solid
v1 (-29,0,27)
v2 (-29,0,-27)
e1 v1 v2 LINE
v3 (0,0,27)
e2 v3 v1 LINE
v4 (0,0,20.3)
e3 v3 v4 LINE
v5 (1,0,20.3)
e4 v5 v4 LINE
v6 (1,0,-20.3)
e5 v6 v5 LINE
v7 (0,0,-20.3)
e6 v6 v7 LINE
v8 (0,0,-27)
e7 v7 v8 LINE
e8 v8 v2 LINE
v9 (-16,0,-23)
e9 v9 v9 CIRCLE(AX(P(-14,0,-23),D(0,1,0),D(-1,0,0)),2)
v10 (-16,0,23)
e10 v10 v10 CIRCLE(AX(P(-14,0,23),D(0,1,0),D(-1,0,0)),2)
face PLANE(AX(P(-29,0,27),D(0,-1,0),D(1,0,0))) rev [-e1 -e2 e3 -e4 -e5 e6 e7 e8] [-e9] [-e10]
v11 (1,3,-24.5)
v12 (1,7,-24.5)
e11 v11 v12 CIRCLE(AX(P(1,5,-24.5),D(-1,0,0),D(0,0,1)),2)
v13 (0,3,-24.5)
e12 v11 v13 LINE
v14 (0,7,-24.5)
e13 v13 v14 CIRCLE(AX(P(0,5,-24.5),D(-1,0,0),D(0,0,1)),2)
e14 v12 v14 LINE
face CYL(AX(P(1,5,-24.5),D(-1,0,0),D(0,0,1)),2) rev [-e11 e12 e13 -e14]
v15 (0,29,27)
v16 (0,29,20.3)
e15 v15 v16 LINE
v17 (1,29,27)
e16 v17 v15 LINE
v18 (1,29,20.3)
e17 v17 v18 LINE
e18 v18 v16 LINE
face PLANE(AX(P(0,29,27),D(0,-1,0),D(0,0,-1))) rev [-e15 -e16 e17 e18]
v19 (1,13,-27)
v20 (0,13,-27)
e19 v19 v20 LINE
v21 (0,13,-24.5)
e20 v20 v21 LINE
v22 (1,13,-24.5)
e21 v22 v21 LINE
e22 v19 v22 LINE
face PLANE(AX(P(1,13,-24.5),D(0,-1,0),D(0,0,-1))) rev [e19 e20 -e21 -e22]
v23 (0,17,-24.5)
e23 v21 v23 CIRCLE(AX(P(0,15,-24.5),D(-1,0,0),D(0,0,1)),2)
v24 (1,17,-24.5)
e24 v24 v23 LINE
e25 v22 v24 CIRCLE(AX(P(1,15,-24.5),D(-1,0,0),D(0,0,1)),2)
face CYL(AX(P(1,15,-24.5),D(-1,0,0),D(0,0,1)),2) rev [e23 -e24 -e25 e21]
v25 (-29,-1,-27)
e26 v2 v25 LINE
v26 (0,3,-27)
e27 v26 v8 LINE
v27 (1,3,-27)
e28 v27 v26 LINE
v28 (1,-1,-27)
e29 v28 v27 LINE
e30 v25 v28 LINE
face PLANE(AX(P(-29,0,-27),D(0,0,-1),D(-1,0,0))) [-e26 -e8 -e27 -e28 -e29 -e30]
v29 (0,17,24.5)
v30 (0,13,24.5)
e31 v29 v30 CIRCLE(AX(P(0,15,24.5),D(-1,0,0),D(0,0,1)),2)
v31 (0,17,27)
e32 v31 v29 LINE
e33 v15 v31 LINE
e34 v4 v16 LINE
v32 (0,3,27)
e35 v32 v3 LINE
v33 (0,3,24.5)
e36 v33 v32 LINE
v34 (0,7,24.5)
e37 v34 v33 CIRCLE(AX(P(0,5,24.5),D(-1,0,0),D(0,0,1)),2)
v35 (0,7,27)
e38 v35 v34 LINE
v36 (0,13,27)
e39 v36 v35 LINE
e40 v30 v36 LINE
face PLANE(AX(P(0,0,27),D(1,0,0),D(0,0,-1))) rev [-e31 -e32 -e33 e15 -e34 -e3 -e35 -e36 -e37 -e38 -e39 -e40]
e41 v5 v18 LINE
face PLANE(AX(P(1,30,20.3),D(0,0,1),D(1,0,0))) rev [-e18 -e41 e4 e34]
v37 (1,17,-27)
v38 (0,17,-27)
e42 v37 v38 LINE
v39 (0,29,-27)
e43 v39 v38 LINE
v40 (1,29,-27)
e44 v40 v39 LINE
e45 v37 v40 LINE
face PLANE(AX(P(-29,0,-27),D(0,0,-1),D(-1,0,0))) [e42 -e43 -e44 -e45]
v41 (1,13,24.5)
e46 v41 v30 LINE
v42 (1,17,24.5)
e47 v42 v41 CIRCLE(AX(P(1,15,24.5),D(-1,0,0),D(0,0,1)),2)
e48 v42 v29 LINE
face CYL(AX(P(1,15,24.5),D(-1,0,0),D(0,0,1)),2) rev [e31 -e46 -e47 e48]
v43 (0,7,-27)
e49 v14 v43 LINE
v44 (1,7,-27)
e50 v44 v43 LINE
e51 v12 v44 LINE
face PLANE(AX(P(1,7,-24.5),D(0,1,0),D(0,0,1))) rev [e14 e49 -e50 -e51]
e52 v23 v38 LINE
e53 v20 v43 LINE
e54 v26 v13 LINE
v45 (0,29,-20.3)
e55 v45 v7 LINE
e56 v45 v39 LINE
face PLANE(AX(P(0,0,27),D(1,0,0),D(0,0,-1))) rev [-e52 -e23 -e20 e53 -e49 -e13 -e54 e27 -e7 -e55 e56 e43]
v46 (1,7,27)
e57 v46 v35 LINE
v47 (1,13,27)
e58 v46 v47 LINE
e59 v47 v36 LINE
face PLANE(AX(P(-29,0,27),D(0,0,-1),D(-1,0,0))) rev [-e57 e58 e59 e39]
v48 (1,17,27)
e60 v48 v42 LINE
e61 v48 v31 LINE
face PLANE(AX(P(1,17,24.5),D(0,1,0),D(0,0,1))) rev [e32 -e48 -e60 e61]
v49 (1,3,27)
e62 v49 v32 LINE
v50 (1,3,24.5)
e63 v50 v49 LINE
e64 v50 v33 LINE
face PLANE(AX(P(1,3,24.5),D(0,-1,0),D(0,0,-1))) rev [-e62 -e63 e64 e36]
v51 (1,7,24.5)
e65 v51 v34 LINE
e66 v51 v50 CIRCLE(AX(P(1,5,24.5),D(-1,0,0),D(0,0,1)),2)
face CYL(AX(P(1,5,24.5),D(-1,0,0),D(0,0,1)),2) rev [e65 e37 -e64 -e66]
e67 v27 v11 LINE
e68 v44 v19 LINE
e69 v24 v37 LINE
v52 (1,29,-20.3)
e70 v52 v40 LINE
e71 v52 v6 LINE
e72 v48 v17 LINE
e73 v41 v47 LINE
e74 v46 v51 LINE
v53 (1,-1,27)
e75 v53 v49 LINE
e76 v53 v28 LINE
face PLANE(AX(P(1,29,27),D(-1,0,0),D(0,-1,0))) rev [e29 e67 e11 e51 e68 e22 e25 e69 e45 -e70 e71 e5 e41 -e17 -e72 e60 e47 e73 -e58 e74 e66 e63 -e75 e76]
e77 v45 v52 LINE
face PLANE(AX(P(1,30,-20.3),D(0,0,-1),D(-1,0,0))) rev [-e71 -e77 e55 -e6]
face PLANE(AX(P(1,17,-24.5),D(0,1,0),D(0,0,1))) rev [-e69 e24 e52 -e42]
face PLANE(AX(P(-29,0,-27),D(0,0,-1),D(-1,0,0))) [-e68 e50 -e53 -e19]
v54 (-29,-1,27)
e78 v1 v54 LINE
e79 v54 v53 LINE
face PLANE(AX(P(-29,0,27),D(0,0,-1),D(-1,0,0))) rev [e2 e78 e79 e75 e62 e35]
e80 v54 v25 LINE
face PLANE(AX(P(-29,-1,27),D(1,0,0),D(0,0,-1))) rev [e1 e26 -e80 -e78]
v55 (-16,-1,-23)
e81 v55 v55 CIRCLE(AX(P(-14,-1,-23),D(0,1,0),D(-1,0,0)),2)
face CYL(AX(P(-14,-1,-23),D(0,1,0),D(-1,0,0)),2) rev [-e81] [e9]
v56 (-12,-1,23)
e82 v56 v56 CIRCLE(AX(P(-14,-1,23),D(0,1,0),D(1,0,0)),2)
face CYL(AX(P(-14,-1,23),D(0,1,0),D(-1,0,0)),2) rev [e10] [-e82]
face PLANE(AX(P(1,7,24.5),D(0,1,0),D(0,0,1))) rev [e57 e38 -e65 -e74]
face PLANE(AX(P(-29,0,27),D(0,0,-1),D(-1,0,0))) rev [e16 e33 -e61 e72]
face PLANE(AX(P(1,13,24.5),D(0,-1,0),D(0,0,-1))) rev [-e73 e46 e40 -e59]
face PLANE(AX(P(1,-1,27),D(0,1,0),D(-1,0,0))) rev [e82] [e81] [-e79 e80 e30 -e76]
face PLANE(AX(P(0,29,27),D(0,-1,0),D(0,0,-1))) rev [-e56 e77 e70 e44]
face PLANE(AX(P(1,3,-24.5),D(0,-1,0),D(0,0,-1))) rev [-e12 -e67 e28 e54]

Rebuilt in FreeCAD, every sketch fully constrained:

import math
import FreeCAD as App
import Part
import Sketcher
from FreeCAD import Vector
Q = App.Units.Quantity


def add_polygon(sketch, points):
    """Adds a closed chain of lines whose ends are joined by coincident constraints."""
    first, n = sketch.GeometryCount, len(points)
    for a, b in zip(points, points[1:] + points[:1]):
        sketch.addGeometry(Part.LineSegment(App.Vector(*a, 0), App.Vector(*b, 0)), False)
    for i in range(n):
        sketch.addConstraint(Sketcher.Constraint("Coincident", first + i, 2, first + (i + 1) % n, 1))

doc = App.newDocument("Part")
body = doc.addObject("PartDesign::Body", "Body")

# Sketch on XY plane
sketch1 = doc.addObject("Sketcher::SketchObject", "Sketch")
body.addObject(sketch1)
sketch1.AttachmentSupport = (doc.XY_Plane, [""])
sketch1.MapMode = "FlatFace"
add_polygon(sketch1, [(0, 0), (-29, 0), (-29, -1), (1, -1), (1, 29), (0, 29)])  # lines 0-5
sketch1.addConstraint([
    Sketcher.Constraint("Horizontal", 0),
    Sketcher.Constraint("Vertical", 1),
    Sketcher.Constraint("Horizontal", 2),
    Sketcher.Constraint("Vertical", 3),
    Sketcher.Constraint("Horizontal", 4),
    Sketcher.Constraint("Vertical", 5),
    Sketcher.Constraint("Coincident", 5, 2, -1, 1),
    Sketcher.Constraint("Equal", 4, 1),
    Sketcher.Constraint("Equal", 2, 3),
    Sketcher.Constraint("DistanceX", 0, 2, 0, 1, Q("29 mm")),
    Sketcher.Constraint("DistanceX", 2, 1, 2, 2, Q("30 mm")),
])
pad1 = doc.addObject("PartDesign::Pad", "Pad")
body.addObject(pad1)
pad1.Profile = sketch1
pad1.Length = 54
pad1.Midplane = True

# Sketch on YZ plane
sketch2 = doc.addObject("Sketcher::SketchObject", "Sketch001")
body.addObject(sketch2)
sketch2.AttachmentSupport = (doc.YZ_Plane, [""])
sketch2.MapMode = "FlatFace"
sketch2.addGeometry(Part.LineSegment(Vector(17, -24.5, 0), Vector(17, -27, 0)), False)  # 0
sketch2.addGeometry(Part.LineSegment(Vector(17, -27, 0), Vector(13, -27, 0)), False)  # 1
sketch2.addGeometry(Part.LineSegment(Vector(13, -27, 0), Vector(13, -24.5, 0)), False)  # 2
sketch2.addGeometry(Part.ArcOfCircle(Part.Circle(Vector(15, -24.5, 0), Vector(0, 0, 1), 2), math.radians(0), math.radians(180)), False)  # 3
add_polygon(sketch2, [(30, -20.3), (0, -20.3), (0, 20.3), (30, 20.3)])  # lines 4-7
sketch2.addGeometry(Part.LineSegment(Vector(3, -27, 0), Vector(3, -24.5, 0)), False)  # 8
sketch2.addGeometry(Part.ArcOfCircle(Part.Circle(Vector(5, -24.5, 0), Vector(0, 0, 1), 2), math.radians(0), math.radians(180)), False)  # 9
sketch2.addGeometry(Part.LineSegment(Vector(7, -24.5, 0), Vector(7, -27, 0)), False)  # 10
sketch2.addGeometry(Part.LineSegment(Vector(7, -27, 0), Vector(3, -27, 0)), False)  # 11
sketch2.addGeometry(Part.LineSegment(Vector(7, 27, 0), Vector(7, 24.5, 0)), False)  # 12
sketch2.addGeometry(Part.ArcOfCircle(Part.Circle(Vector(5, 24.5, 0), Vector(0, 0, 1), 2), math.radians(180), math.radians(360)), False)  # 13
sketch2.addGeometry(Part.LineSegment(Vector(3, 24.5, 0), Vector(3, 27, 0)), False)  # 14
sketch2.addGeometry(Part.LineSegment(Vector(3, 27, 0), Vector(7, 27, 0)), False)  # 15
sketch2.addGeometry(Part.LineSegment(Vector(13, 24.5, 0), Vector(13, 27, 0)), False)  # 16
sketch2.addGeometry(Part.LineSegment(Vector(13, 27, 0), Vector(17, 27, 0)), False)  # 17
sketch2.addGeometry(Part.LineSegment(Vector(17, 27, 0), Vector(17, 24.5, 0)), False)  # 18
sketch2.addGeometry(Part.ArcOfCircle(Part.Circle(Vector(15, 24.5, 0), Vector(0, 0, 1), 2), math.radians(180), math.radians(360)), False)  # 19
sketch2.addConstraint([
    Sketcher.Constraint("Coincident", 0, 2, 1, 1),
    Sketcher.Constraint("Coincident", 1, 2, 2, 1),
    Sketcher.Constraint("Tangent", 2, 2, 3, 2),
    Sketcher.Constraint("Tangent", 3, 1, 0, 1),
    Sketcher.Constraint("Tangent", 8, 2, 9, 2),
    Sketcher.Constraint("Tangent", 9, 1, 10, 1),
    Sketcher.Constraint("Coincident", 10, 2, 11, 1),
    Sketcher.Constraint("Coincident", 11, 2, 8, 1),
    Sketcher.Constraint("Tangent", 12, 2, 13, 2),
    Sketcher.Constraint("Tangent", 13, 1, 14, 1),
    Sketcher.Constraint("Coincident", 14, 2, 15, 1),
    Sketcher.Constraint("Coincident", 15, 2, 12, 1),
    Sketcher.Constraint("Coincident", 16, 2, 17, 1),
    Sketcher.Constraint("Coincident", 17, 2, 18, 1),
    Sketcher.Constraint("Tangent", 18, 2, 19, 2),
    Sketcher.Constraint("Tangent", 19, 1, 16, 1),
    Sketcher.Constraint("Vertical", 0),
    Sketcher.Constraint("Horizontal", 1),
    Sketcher.Constraint("Vertical", 2),
    Sketcher.Constraint("Horizontal", 4),
    Sketcher.Constraint("Vertical", 5),
    Sketcher.Constraint("Horizontal", 6),
    Sketcher.Constraint("Vertical", 7),
    Sketcher.Constraint("Vertical", 8),
    Sketcher.Constraint("Vertical", 10),
    Sketcher.Constraint("Horizontal", 11),
    Sketcher.Constraint("Vertical", 12),
    Sketcher.Constraint("Vertical", 14),
    Sketcher.Constraint("Horizontal", 15),
    Sketcher.Constraint("Vertical", 16),
    Sketcher.Constraint("Horizontal", 17),
    Sketcher.Constraint("Vertical", 18),
    Sketcher.Constraint("Equal", 3, 9),
    Sketcher.Constraint("Equal", 9, 13),
    Sketcher.Constraint("Equal", 13, 19),
    Sketcher.Constraint("Symmetric", 4, 2, 5, 2, -1, 1),
    Sketcher.Constraint("Symmetric", 9, 3, 13, 3, -1),
    Sketcher.Constraint("Symmetric", 3, 3, 19, 3, -1),
    Sketcher.Constraint("Horizontal", 3, 3, 9, 3),
    Sketcher.Constraint("Horizontal", 1, 2, 10, 2),
    Sketcher.Constraint("Horizontal", 15, 2, 16, 2),
    Sketcher.Constraint("Equal", 10, 12),
    Sketcher.Constraint("Radius", 3, Q("2 mm")),
    Sketcher.Constraint("DistanceX", 4, 2, 4, 1, Q("30 mm")),
    Sketcher.Constraint("DistanceY", 0, 2, 0, 1, Q("2.5 mm")),
    Sketcher.Constraint("DistanceY", 5, 1, 5, 2, Q("40.6 mm")),
    Sketcher.Constraint("DistanceX", -1, 1, 3, 3, Q("15 mm")),
    Sketcher.Constraint("DistanceX", -1, 1, 9, 3, Q("5 mm")),
    Sketcher.Constraint("DistanceY", 0, 2, -1, 1, Q("27 mm")),
])
pocket1 = doc.addObject("PartDesign::Pocket", "Pocket")
body.addObject(pocket1)
pocket1.Profile = sketch2
pocket1.Type = "ThroughAll"
pocket1.Reversed = True

# Sketch on XZ plane
sketch3 = doc.addObject("Sketcher::SketchObject", "Sketch002")
body.addObject(sketch3)
sketch3.AttachmentSupport = (doc.XZ_Plane, [""])
sketch3.MapMode = "FlatFace"
sketch3.addGeometry([
    Part.Circle(Vector(-14, -23, 0), Vector(0, 0, 1), 2),
    Part.Circle(Vector(-14, 23, 0), Vector(0, 0, 1), 2),
], False)
sketch3.addConstraint([
    Sketcher.Constraint("Equal", 0, 1),
    Sketcher.Constraint("Symmetric", 0, 3, 1, 3, -1),
    Sketcher.Constraint("Diameter", 0, Q("4 mm")),
    Sketcher.Constraint("DistanceX", 0, 3, -1, 1, Q("14 mm")),
    Sketcher.Constraint("DistanceY", 0, 3, -1, 1, Q("23 mm")),
])
pocket2 = doc.addObject("PartDesign::Pocket", "Pocket001")
body.addObject(pocket2)
pocket2.Profile = sketch3
pocket2.Type = "ThroughAll"
pocket2.Reversed = True

doc.recompute()
